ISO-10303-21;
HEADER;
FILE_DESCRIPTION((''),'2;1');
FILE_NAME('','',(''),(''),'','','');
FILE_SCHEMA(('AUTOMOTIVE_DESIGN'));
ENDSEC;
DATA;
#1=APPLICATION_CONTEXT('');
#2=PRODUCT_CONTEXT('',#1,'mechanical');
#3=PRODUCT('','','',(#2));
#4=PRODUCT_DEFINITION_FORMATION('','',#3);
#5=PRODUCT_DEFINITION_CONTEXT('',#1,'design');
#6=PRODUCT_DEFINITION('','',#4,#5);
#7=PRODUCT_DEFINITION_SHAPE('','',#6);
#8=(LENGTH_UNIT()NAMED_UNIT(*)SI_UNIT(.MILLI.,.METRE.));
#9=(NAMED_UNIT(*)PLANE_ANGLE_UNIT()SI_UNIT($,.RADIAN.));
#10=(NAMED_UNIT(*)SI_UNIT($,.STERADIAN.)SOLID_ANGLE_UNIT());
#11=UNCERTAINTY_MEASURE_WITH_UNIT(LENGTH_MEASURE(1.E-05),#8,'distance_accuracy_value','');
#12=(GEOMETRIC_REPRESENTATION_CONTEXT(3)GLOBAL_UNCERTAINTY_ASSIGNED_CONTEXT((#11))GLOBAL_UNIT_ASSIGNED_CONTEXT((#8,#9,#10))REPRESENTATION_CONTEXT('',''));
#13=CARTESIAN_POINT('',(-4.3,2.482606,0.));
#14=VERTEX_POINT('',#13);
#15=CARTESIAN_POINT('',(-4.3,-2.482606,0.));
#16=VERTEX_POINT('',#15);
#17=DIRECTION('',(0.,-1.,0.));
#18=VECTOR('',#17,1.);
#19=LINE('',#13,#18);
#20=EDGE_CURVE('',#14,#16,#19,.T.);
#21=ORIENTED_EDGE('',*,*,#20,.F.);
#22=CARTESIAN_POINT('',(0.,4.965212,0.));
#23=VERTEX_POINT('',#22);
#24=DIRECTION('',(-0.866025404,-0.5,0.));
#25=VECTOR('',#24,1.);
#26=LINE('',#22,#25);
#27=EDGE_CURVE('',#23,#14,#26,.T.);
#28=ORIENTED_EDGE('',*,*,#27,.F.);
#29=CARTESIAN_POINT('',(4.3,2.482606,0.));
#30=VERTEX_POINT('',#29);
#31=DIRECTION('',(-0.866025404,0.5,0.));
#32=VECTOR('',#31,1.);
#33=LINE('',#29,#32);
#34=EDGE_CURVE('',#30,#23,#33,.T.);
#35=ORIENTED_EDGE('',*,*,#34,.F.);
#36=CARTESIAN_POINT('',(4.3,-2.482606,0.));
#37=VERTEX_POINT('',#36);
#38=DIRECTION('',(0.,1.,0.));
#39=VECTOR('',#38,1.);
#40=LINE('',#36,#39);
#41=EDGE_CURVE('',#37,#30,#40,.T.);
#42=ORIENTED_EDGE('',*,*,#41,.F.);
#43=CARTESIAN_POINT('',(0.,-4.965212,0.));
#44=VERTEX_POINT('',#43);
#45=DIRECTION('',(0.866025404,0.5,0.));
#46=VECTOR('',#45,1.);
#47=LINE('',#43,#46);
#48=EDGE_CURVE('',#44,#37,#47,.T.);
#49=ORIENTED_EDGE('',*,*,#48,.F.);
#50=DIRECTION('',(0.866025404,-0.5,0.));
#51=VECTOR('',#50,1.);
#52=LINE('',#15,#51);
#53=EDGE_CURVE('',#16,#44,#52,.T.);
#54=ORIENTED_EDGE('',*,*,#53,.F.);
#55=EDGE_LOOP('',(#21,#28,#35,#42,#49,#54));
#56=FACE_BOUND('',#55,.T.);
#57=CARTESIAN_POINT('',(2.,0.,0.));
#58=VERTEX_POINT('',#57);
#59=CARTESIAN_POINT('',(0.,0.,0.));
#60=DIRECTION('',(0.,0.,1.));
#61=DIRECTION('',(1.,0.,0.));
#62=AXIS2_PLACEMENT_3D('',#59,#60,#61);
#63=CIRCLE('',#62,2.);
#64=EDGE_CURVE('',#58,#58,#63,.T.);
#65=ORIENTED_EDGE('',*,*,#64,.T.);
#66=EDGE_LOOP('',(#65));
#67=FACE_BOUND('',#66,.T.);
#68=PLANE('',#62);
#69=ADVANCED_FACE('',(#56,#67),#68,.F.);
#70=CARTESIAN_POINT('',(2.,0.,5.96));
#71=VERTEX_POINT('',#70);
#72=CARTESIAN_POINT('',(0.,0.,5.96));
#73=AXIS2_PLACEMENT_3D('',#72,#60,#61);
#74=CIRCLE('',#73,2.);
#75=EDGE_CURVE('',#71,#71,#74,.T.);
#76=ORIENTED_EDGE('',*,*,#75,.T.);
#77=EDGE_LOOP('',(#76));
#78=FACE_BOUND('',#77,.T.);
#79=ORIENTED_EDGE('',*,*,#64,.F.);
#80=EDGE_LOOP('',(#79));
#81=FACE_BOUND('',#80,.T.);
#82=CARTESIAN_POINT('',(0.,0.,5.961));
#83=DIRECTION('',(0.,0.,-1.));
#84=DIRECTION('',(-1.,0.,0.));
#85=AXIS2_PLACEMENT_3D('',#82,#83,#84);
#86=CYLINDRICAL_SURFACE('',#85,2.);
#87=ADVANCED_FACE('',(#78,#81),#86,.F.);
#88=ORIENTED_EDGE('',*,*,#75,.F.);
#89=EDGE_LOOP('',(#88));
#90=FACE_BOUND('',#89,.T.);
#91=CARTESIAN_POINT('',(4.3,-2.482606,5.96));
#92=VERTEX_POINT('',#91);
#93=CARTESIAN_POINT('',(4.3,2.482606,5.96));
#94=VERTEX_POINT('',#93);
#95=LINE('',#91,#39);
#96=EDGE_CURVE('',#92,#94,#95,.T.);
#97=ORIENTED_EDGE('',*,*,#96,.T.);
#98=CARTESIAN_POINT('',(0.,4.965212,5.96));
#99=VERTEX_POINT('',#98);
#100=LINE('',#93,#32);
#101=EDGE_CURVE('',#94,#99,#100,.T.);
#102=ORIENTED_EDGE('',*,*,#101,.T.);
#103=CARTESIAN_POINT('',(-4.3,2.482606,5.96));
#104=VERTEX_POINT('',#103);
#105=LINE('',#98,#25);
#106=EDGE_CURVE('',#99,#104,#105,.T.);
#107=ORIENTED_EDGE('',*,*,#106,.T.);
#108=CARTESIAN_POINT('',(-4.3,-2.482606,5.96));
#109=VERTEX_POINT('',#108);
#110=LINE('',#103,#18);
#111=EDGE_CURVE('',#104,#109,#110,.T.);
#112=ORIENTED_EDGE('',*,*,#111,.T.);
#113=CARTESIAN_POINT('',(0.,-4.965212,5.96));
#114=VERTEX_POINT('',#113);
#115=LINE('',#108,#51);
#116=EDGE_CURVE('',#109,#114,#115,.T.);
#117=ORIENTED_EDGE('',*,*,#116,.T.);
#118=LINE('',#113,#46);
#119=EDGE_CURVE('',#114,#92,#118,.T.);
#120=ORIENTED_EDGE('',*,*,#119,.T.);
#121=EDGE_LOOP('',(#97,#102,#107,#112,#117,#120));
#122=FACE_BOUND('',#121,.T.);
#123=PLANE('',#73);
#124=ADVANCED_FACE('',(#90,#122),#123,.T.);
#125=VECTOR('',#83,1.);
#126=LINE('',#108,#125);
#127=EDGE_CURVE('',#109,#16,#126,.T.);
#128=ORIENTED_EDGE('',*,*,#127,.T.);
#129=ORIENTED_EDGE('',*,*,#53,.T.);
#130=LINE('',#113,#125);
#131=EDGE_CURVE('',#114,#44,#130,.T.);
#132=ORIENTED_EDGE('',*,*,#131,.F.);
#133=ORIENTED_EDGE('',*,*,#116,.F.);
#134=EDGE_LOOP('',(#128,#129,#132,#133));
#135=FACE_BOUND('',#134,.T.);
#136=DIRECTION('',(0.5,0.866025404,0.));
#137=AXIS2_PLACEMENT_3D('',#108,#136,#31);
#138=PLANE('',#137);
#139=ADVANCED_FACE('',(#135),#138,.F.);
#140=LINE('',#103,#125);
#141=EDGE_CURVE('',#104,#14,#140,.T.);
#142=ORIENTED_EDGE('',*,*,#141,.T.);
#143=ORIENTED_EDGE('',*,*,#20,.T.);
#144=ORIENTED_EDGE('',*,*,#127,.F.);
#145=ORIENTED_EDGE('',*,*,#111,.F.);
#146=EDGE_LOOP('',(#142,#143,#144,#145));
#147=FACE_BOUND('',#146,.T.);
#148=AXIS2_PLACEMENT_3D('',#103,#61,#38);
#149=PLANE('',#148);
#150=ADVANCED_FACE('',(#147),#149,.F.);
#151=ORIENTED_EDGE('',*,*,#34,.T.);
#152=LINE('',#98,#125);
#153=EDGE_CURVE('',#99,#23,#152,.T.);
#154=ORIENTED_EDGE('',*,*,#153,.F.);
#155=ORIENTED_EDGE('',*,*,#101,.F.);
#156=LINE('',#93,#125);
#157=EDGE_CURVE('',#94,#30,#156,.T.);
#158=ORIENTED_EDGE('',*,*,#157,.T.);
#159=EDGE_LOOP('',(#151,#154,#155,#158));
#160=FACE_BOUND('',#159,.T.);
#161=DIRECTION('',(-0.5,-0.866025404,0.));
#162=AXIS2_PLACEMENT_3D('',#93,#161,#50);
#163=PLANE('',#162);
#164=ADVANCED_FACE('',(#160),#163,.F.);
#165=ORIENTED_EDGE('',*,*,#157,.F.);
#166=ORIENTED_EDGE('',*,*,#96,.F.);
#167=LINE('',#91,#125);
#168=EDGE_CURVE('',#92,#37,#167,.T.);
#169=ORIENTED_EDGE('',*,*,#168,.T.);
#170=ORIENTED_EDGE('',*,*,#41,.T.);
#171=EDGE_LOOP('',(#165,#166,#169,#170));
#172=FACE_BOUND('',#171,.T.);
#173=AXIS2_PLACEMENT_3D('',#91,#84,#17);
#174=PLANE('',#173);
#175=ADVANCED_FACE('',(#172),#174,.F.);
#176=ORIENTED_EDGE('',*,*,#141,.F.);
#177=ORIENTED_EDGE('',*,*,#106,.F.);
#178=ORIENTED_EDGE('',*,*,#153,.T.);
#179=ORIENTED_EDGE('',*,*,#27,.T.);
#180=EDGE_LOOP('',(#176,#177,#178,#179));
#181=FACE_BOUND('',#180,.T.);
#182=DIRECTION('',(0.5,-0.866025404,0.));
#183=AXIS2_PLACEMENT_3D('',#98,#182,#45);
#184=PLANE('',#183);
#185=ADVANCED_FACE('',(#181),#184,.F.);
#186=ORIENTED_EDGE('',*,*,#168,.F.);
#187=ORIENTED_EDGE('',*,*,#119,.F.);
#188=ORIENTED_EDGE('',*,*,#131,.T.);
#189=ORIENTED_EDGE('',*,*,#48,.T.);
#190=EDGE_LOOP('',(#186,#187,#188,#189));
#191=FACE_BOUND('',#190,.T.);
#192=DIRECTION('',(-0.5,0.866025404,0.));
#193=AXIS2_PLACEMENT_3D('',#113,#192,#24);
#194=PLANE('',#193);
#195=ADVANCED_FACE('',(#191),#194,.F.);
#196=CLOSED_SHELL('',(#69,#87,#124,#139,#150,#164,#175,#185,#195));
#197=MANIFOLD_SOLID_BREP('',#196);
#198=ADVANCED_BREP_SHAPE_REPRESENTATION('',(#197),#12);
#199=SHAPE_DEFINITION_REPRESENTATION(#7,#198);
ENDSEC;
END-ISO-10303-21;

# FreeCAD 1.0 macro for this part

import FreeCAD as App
import Part
import Sketcher
from FreeCAD import Vector
Q = App.Units.Quantity

doc = App.newDocument("Part")
body = doc.addObject("PartDesign::Body", "Body")

sketch1 = body.newObject("Sketcher::SketchObject", "Sketch")
sketch1.AttachmentSupport = (doc.getObject("XY_Plane"), [""])
sketch1.MapMode = "FlatFace"
sketch1.addGeometry([
    Part.LineSegment(Vector(0, 4.965212, 0), Vector(-4.3, 2.482606, 0)),
    Part.LineSegment(Vector(-4.3, 2.482606, 0), Vector(-4.3, -2.482606, 0)),
    Part.LineSegment(Vector(-4.3, -2.482606, 0), Vector(0, -4.965212, 0)),
    Part.LineSegment(Vector(0, -4.965212, 0), Vector(4.3, -2.482606, 0)),
    Part.LineSegment(Vector(4.3, -2.482606, 0), Vector(4.3, 2.482606, 0)),
    Part.LineSegment(Vector(4.3, 2.482606, 0), Vector(0, 4.965212, 0)),
], False)
sketch1.addConstraint([
    Sketcher.Constraint("Coincident", 0, 2, 1, 1),
    Sketcher.Constraint("Coincident", 1, 2, 2, 1),
    Sketcher.Constraint("Coincident", 2, 2, 3, 1),
    Sketcher.Constraint("Coincident", 3, 2, 4, 1),
    Sketcher.Constraint("Coincident", 4, 2, 5, 1),
    Sketcher.Constraint("Coincident", 5, 2, 0, 1),
    Sketcher.Constraint("Vertical", 1),
    Sketcher.Constraint("Vertical", 4),
    Sketcher.Constraint("Symmetric", 0, 2, 3, 2, -1, 1),
    Sketcher.Constraint("Symmetric", 2, 2, 5, 2, -1, 1),
    Sketcher.Constraint("PointOnObject", 2, 2, -2),
    Sketcher.Constraint("Parallel", 2, 5),
    Sketcher.Constraint("Horizontal", 1, 2, 3, 2),
    Sketcher.Constraint("Angle", 0, Q("-150 deg")),
    Sketcher.Constraint("DistanceX", 0, 2, -1, 1, Q("4.3 mm")),
    Sketcher.Constraint("DistanceY", 1, 2, 1, 1, Q("4.965212 mm")),
])
pad1 = body.newObject("PartDesign::Pad", "Pad")
pad1.Profile = sketch1
pad1.Length = 5.96

sketch2 = body.newObject("Sketcher::SketchObject", "Sketch001")
sketch2.AttachmentSupport = (doc.getObject("XY_Plane"), [""])
sketch2.MapMode = "FlatFace"
sketch2.addGeometry(Part.Circle(Vector(0, 0, 0), Vector(0, 0, 1), 2), False)
sketch2.addConstraint([
    Sketcher.Constraint("Coincident", 0, 3, -1, 1),
    Sketcher.Constraint("Diameter", 0, Q("4 mm")),
])
pocket1 = body.newObject("PartDesign::Pocket", "Pocket")
pocket1.Profile = sketch2
pocket1.Type = "UpToFirst"
pocket1.Reversed = True

doc.recompute()
